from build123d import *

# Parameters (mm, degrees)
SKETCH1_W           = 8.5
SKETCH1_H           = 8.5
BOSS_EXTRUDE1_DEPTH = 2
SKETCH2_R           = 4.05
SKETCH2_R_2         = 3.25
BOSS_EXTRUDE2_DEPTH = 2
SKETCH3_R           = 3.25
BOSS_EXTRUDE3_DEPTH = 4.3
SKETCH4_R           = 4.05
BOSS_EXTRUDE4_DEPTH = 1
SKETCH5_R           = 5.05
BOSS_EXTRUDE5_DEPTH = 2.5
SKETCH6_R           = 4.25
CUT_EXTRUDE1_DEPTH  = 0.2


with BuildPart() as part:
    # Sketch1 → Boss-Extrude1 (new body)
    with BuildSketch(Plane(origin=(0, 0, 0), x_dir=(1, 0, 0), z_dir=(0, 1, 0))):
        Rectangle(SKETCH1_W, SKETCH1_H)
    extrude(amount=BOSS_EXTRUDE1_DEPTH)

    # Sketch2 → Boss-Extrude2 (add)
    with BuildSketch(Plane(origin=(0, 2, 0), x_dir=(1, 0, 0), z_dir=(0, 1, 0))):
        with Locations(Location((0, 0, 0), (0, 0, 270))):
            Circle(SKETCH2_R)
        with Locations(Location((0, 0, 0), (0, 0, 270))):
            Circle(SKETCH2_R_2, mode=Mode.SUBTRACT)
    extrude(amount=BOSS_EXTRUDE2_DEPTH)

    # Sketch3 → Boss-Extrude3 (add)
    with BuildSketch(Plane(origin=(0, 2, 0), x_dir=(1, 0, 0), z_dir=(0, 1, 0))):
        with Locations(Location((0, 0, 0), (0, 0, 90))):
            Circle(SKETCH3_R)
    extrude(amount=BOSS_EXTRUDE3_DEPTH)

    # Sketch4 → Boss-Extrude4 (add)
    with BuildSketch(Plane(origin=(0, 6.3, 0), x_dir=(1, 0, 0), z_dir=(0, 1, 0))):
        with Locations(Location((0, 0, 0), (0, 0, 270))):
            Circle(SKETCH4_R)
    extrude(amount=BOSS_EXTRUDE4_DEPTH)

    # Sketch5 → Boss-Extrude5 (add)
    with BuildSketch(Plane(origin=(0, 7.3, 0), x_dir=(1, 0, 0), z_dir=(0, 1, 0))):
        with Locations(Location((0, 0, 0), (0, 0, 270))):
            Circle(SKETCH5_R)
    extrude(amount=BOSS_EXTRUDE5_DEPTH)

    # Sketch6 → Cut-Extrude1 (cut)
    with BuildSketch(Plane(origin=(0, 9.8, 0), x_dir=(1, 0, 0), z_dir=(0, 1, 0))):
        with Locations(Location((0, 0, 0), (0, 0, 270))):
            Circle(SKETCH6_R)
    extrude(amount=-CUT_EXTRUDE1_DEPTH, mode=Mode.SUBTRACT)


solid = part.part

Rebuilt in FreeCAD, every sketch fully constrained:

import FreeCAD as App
import Part
import Sketcher

V = App.Vector
Q = App.Units.Quantity

doc = App.newDocument("Part")
body = doc.addObject("PartDesign::Body", "Body")

# Sketch on XZ plane
sketch1 = body.newObject("Sketcher::SketchObject", "Sketch")
sketch1.AttachmentSupport = (doc.getObject("XZ_Plane"), [""])
sketch1.MapMode = "FlatFace"
sketch1.addGeometry(Part.LineSegment(V(-4, -4, 0), V(-4, 4, 0)), False)
sketch1.addGeometry(Part.LineSegment(V(-4, 4, 0), V(4, 4, 0)), False)
sketch1.addGeometry(Part.LineSegment(V(4, 4, 0), V(4, -4, 0)), False)
sketch1.addGeometry(Part.LineSegment(V(4, -4, 0), V(-4, -4, 0)), False)
sketch1.addConstraint(Sketcher.Constraint("Coincident", 0, 2, 1, 1))
sketch1.addConstraint(Sketcher.Constraint("Coincident", 1, 2, 2, 1))
sketch1.addConstraint(Sketcher.Constraint("Coincident", 2, 2, 3, 1))
sketch1.addConstraint(Sketcher.Constraint("Coincident", 3, 2, 0, 1))
sketch1.addConstraint(Sketcher.Constraint("Vertical", 0))
sketch1.addConstraint(Sketcher.Constraint("Horizontal", 1))
sketch1.addConstraint(Sketcher.Constraint("Vertical", 2))
sketch1.addConstraint(Sketcher.Constraint("Horizontal", 3))
sketch1.addConstraint(Sketcher.Constraint("Symmetric", 0, 2, 2, 2, -1, 1))
sketch1.addConstraint(Sketcher.Constraint("Equal", 3, 0))
sketch1.addConstraint(Sketcher.Constraint("DistanceX", 1, 1, 1, 2, Q("8.5 mm")))
pad1 = body.newObject("PartDesign::Pad", "Pad")
pad1.Profile = sketch1
pad1.Length = 2
pad1.Reversed = True

# Sketch on XZ plane
sketch2 = body.newObject("Sketcher::SketchObject", "Sketch001")
sketch2.AttachmentSupport = (doc.getObject("XZ_Plane"), [""])
sketch2.MapMode = "FlatFace"
sketch2.AttachmentOffset = App.Placement(V(0, 0, -2), App.Rotation())
sketch2.addGeometry(Part.Circle(V(0, 0, 0), V(0, 0, 1), 4), False)
sketch2.addGeometry(Part.Circle(V(0, 0, 0), V(0, 0, 1), 3.2), False)
sketch2.addConstraint(Sketcher.Constraint("Coincident", 0, 3, -1, 1))
sketch2.addConstraint(Sketcher.Constraint("Coincident", 1, 3, -1, 1))
sketch2.addConstraint(Sketcher.Constraint("Diameter", 0, Q("8.1 mm")))
sketch2.addConstraint(Sketcher.Constraint("Diameter", 1, Q("6.5 mm")))
pad2 = body.newObject("PartDesign::Pad", "Pad001")
pad2.Profile = sketch2
pad2.Length = 2
pad2.Reversed = True

# Sketch on XZ plane
sketch3 = body.newObject("Sketcher::SketchObject", "Sketch002")
sketch3.AttachmentSupport = (doc.getObject("XZ_Plane"), [""])
sketch3.MapMode = "FlatFace"
sketch3.AttachmentOffset = App.Placement(V(0, 0, -2), App.Rotation())
sketch3.addGeometry(Part.Circle(V(0, 0, 0), V(0, 0, 1), 3.2), False)
sketch3.addConstraint(Sketcher.Constraint("Coincident", 0, 3, -1, 1))
sketch3.addConstraint(Sketcher.Constraint("Diameter", 0, Q("6.5 mm")))
pad3 = body.newObject("PartDesign::Pad", "Pad002")
pad3.Profile = sketch3
pad3.Length = 4.3
pad3.Reversed = True

# Sketch on XZ plane
sketch4 = body.newObject("Sketcher::SketchObject", "Sketch003")
sketch4.AttachmentSupport = (doc.getObject("XZ_Plane"), [""])
sketch4.MapMode = "FlatFace"
sketch4.AttachmentOffset = App.Placement(V(0, 0, -6.3), App.Rotation())
sketch4.addGeometry(Part.Circle(V(0, 0, 0), V(0, 0, 1), 4), False)
sketch4.addConstraint(Sketcher.Constraint("Coincident", 0, 3, -1, 1))
sketch4.addConstraint(Sketcher.Constraint("Diameter", 0, Q("8.1 mm")))
pad4 = body.newObject("PartDesign::Pad", "Pad003")
pad4.Profile = sketch4
pad4.Length = 1
pad4.Reversed = True

# Sketch on XZ plane
sketch5 = body.newObject("Sketcher::SketchObject", "Sketch004")
sketch5.AttachmentSupport = (doc.getObject("XZ_Plane"), [""])
sketch5.MapMode = "FlatFace"
sketch5.AttachmentOffset = App.Placement(V(0, 0, -7.3), App.Rotation())
sketch5.addGeometry(Part.Circle(V(0, 0, 0), V(0, 0, 1), 5), False)
sketch5.addConstraint(Sketcher.Constraint("Coincident", 0, 3, -1, 1))
sketch5.addConstraint(Sketcher.Constraint("Diameter", 0, Q("10.1 mm")))
pad5 = body.newObject("PartDesign::Pad", "Pad004")
pad5.Profile = sketch5
pad5.Length = 2.5
pad5.Reversed = True

# Sketch on XZ plane
sketch6 = body.newObject("Sketcher::SketchObject", "Sketch005")
sketch6.AttachmentSupport = (doc.getObject("XZ_Plane"), [""])
sketch6.MapMode = "FlatFace"
sketch6.AttachmentOffset = App.Placement(V(0, 0, -9.8), App.Rotation())
sketch6.addGeometry(Part.Circle(V(0, 0, 0), V(0, 0, 1), 4.2), False)
sketch6.addConstraint(Sketcher.Constraint("Coincident", 0, 3, -1, 1))
sketch6.addConstraint(Sketcher.Constraint("Diameter", 0, Q("8.5 mm")))
pocket1 = body.newObject("PartDesign::Pocket", "Pocket")
pocket1.Profile = sketch6
pocket1.Length = 0.2
pocket1.Reversed = True

doc.recompute()
